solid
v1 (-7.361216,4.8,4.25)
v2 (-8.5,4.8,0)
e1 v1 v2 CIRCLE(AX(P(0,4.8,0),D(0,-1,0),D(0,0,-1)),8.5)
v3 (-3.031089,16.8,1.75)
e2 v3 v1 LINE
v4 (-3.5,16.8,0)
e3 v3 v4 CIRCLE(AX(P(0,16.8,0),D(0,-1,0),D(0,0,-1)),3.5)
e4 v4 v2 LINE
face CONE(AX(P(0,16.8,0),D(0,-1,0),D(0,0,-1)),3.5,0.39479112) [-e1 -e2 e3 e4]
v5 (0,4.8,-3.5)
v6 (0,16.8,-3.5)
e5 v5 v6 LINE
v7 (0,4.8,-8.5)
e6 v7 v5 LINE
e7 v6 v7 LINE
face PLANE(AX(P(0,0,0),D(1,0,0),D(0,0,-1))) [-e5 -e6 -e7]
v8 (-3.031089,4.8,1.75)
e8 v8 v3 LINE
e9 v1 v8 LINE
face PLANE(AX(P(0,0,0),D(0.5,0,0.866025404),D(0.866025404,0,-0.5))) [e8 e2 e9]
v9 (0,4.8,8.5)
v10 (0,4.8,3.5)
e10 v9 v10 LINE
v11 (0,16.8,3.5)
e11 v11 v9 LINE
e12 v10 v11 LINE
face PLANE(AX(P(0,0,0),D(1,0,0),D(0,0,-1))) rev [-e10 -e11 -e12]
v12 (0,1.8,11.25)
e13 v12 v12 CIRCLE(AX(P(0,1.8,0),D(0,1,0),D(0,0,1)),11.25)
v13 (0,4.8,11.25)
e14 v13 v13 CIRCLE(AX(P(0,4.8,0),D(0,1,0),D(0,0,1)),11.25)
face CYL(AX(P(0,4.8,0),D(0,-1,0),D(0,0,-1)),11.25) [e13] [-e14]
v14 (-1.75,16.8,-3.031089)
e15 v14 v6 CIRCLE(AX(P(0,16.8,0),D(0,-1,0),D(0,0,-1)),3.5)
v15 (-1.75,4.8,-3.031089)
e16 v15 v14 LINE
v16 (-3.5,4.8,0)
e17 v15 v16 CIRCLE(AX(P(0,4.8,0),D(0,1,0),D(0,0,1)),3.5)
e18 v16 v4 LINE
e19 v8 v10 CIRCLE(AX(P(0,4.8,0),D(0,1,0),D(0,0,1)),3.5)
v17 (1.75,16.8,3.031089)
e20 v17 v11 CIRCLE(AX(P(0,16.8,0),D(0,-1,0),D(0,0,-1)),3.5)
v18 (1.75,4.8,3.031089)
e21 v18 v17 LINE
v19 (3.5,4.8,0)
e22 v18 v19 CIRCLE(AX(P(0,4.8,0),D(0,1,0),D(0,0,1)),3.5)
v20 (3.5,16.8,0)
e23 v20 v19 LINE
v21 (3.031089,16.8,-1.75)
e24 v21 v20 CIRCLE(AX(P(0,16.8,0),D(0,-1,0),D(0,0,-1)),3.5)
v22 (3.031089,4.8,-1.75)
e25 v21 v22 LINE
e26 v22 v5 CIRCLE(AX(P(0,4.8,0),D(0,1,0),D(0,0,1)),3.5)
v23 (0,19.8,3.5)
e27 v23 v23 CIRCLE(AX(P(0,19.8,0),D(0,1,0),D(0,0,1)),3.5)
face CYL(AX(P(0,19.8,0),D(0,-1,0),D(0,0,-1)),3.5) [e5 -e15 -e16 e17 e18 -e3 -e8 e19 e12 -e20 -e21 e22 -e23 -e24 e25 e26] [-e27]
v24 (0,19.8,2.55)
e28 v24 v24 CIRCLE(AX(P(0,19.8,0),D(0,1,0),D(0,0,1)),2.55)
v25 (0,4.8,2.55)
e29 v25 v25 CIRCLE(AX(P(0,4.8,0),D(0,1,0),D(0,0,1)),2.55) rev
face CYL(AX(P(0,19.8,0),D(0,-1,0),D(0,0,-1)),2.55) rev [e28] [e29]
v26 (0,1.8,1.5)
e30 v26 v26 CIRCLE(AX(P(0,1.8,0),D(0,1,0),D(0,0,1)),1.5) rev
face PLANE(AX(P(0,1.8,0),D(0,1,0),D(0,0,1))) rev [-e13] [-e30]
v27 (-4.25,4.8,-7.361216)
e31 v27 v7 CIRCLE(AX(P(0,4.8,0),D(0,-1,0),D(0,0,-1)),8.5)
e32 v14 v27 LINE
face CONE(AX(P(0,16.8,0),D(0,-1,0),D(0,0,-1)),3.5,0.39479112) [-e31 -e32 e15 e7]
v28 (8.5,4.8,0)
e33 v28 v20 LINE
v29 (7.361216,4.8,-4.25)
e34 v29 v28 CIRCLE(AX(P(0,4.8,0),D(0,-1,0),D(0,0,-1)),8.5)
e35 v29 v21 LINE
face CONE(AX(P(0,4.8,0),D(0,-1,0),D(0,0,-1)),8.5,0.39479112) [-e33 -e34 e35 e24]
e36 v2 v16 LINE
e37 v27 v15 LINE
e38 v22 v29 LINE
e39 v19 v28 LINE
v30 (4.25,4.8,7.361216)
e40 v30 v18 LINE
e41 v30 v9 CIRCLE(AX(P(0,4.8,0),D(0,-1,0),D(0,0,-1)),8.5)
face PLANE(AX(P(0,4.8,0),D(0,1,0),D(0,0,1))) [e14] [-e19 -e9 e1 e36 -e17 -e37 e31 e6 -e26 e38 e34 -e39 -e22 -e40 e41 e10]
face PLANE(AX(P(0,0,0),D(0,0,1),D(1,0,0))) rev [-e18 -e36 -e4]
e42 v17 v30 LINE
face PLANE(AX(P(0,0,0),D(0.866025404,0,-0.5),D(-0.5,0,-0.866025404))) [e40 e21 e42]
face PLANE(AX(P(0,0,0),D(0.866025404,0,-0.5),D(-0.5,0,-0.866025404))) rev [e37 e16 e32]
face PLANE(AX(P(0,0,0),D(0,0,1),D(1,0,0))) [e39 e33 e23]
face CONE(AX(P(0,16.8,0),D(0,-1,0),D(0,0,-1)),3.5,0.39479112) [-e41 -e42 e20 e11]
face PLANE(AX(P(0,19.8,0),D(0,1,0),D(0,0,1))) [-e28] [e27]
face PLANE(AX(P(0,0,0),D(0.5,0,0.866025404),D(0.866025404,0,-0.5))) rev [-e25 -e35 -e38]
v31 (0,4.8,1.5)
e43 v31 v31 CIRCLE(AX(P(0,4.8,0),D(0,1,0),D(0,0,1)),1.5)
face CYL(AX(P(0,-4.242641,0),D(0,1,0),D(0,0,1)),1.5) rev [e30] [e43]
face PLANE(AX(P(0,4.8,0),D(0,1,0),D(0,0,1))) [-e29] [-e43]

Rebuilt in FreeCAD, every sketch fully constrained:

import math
import FreeCAD as App
import Part
import Sketcher
from FreeCAD import Vector
Q = App.Units.Quantity


def add_polygon(sketch, points):
    """Adds a closed chain of lines whose ends are joined by coincident constraints."""
    first, n = sketch.GeometryCount, len(points)
    for a, b in zip(points, points[1:] + points[:1]):
        sketch.addGeometry(Part.LineSegment(App.Vector(*a, 0), App.Vector(*b, 0)), False)
    for i in range(n):
        sketch.addConstraint(Sketcher.Constraint("Coincident", first + i, 2, first + (i + 1) % n, 1))

doc = App.newDocument("Part")
params = doc.addObject("Spreadsheet::Sheet", "Params")
for row, (alias, value) in enumerate([
    ("sketch1_diameter", "20.8 mm"),
    ("pad1_length", "1.8 mm"),
    ("sketch2_diameter", "22.5 mm"),
    ("pad2_length", "3 mm"),
    ("sketch3_diameter", "7 mm"),
    ("sketch3_diameter2", "5.1 mm"),
    ("pad3_length", "15 mm"),
    ("sketch4_diameter", "3 mm"),
    ("pocket1_length", "4.8 mm"),
    ("sketch5_width", "12 mm"),
    ("sketch5_height", "5 mm"),
    ("revolution_angle", "30 deg"),
    ("sketch6_width", "5 mm"),
    ("sketch6_height", "12 mm"),
    ("revolution2_angle", "30 deg"),
    ("sketch7_radius", "10 mm"),
    ("sketch7_radius2", "9 mm"),
    ("sketch7_radius3", "10.9 mm"),
    ("pad4_length", "2 mm"),
    ("sketch8_height", "2 mm"),
    ("groove_angle", "360 deg"),
    ("sketch9_width", "3.8 mm"),
    ("sketch9_height", "11.25 mm"),
    ("groove2_angle", "360 deg"),
], start=1):
    params.set(f"A{row}", alias)
    params.set(f"B{row}", "=" + value)
    params.setAlias(f"B{row}", alias)

body = doc.addObject("PartDesign::Body", "Body")

sketch1 = doc.addObject("Sketcher::SketchObject", "Sketch")
body.addObject(sketch1)
sketch1.AttachmentSupport = (doc.XZ_Plane, [""])
sketch1.MapMode = "FlatFace"
sketch1.addGeometry(Part.Circle(Vector(0, 0, 0), Vector(0, 0, 1), 10), False)
sketch1.addConstraint([
    Sketcher.Constraint("Coincident", 0, 3, -1, 1),
    Sketcher.Constraint("Diameter", 0, 20.8),
])
sketch1.setExpression("Constraints[1]", "Params.sketch1_diameter")
pad1 = doc.addObject("PartDesign::Pad", "Pad")
body.addObject(pad1)
pad1.Profile = sketch1
pad1.setExpression("Length", "Params.pad1_length")
pad1.Reversed = True

sketch2 = doc.addObject("Sketcher::SketchObject", "Sketch001")
body.addObject(sketch2)
sketch2.AttachmentSupport = (doc.XZ_Plane, [""])
sketch2.MapMode = "FlatFace"
sketch2.AttachmentOffset = App.Placement(Vector(0, 0, -1.8), App.Rotation())
sketch2.addGeometry(Part.Circle(Vector(0, 0, 0), Vector(0, 0, 1), 11), False)
sketch2.addConstraint([
    Sketcher.Constraint("Coincident", 0, 3, -1, 1),
    Sketcher.Constraint("Diameter", 0, 22.5),
])
sketch2.setExpression("Constraints[1]", "Params.sketch2_diameter")
pad2 = doc.addObject("PartDesign::Pad", "Pad001")
body.addObject(pad2)
pad2.Profile = sketch2
pad2.setExpression("Length", "Params.pad2_length")
pad2.Reversed = True

sketch3 = doc.addObject("Sketcher::SketchObject", "Sketch002")
body.addObject(sketch3)
sketch3.AttachmentSupport = (doc.XZ_Plane, [""])
sketch3.MapMode = "FlatFace"
sketch3.AttachmentOffset = App.Placement(Vector(0, 0, -4.8), App.Rotation())
sketch3.addGeometry([
    Part.Circle(Vector(0, 0, 0), Vector(0, 0, 1), 3.5),
    Part.Circle(Vector(0, 0, 0), Vector(0, 0, 1), 2.5),
], False)
sketch3.addConstraint([
    Sketcher.Constraint("Coincident", 0, 3, -1, 1),
    Sketcher.Constraint("Coincident", 1, 3, -1, 1),
    Sketcher.Constraint("Diameter", 0, 7.0),
    Sketcher.Constraint("Diameter", 1, 5.1),
])
sketch3.setExpression("Constraints[2]", "Params.sketch3_diameter")
sketch3.setExpression("Constraints[3]", "Params.sketch3_diameter2")
pad3 = doc.addObject("PartDesign::Pad", "Pad002")
body.addObject(pad3)
pad3.Profile = sketch3
pad3.setExpression("Length", "Params.pad3_length")
pad3.Reversed = True

sketch4 = doc.addObject("Sketcher::SketchObject", "Sketch003")
body.addObject(sketch4)
sketch4.AttachmentSupport = (doc.XZ_Plane, [""])
sketch4.MapMode = "FlatFace"
sketch4.AttachmentOffset = App.Placement(Vector(0, 0, -4.8), App.Rotation())
sketch4.addGeometry(Part.Circle(Vector(0, 0, 0), Vector(0, 0, 1), 1.5), False)
sketch4.addConstraint([
    Sketcher.Constraint("Coincident", 0, 3, -1, 1),
    Sketcher.Constraint("Diameter", 0, 3.0),
])
sketch4.setExpression("Constraints[1]", "Params.sketch4_diameter")
pocket1 = doc.addObject("PartDesign::Pocket", "Pocket")
body.addObject(pocket1)
pocket1.Profile = sketch4
pocket1.setExpression("Length", "Params.pocket1_length")
pocket1.Reversed = True

sketch5 = doc.addObject("Sketcher::SketchObject", "Sketch004")
body.addObject(sketch5)
sketch5.AttachmentSupport = (doc.YZ_Plane, [""])
sketch5.MapMode = "FlatFace"
add_polygon(sketch5, [(17, -4), (5, -4), (5, -8)])
add_polygon(sketch5, [(5, 8), (5, 4), (17, 4)])
sketch5.addConstraint([
    Sketcher.Constraint("Horizontal", 0),
    Sketcher.Constraint("Vertical", 1),
    Sketcher.Constraint("Vertical", 3),
    Sketcher.Constraint("Horizontal", 4),
    Sketcher.Constraint("Symmetric", 0, 2, 3, 2, -1),
    Sketcher.Constraint("Vertical", 2, 2, 4, 2),
    Sketcher.Constraint("Equal", 1, 3),
    Sketcher.Constraint("DistanceX", 0, 2, 0, 1, 12.0),
    Sketcher.Constraint("DistanceY", 1, 2, 1, 1, 5.0),
    Sketcher.Constraint("DistanceY", 0, 2, 3, 2, 7.0),
    Sketcher.Constraint("DistanceX", -1, 1, 0, 2, 4.8),
])
sketch5.setExpression("Constraints[13]", "Params.sketch5_width")
sketch5.setExpression("Constraints[14]", "Params.sketch5_height")
revolution = doc.addObject("PartDesign::Revolution", "Revolution")
body.addObject(revolution)
revolution.Profile = sketch5
revolution.ReferenceAxis = (sketch5, ["H_Axis"])
revolution.setExpression("Angle", "Params.revolution_angle")

sketch6 = doc.addObject("Sketcher::SketchObject", "Sketch005")
body.addObject(sketch6)
sketch6.AttachmentSupport = (doc.XY_Plane, [""])
sketch6.MapMode = "FlatFace"
add_polygon(sketch6, [(4, 5), (8, 5), (4, 17)])
add_polygon(sketch6, [(-4, 17), (-8, 5), (-4, 5)])
sketch6.addConstraint([
    Sketcher.Constraint("Horizontal", 0),
    Sketcher.Constraint("Vertical", 2),
    Sketcher.Constraint("Horizontal", 4),
    Sketcher.Constraint("Vertical", 5),
    Sketcher.Constraint("Symmetric", 0, 2, 3, 2, -2),
    Sketcher.Constraint("Symmetric", 1, 2, 5, 2, -2),
    Sketcher.Constraint("DistanceX", 0, 1, 0, 2, 5.0),
    Sketcher.Constraint("DistanceY", 2, 2, 2, 1, 12.0),
    Sketcher.Constraint("DistanceX", 3, 2, 2, 2, 12.0),
    Sketcher.Constraint("DistanceY", -1, 1, 0, 2, 4.8),
])
sketch6.setExpression("Constraints[12]", "Params.sketch6_width")
sketch6.setExpression("Constraints[13]", "Params.sketch6_height")
revolution2 = doc.addObject("PartDesign::Revolution", "Revolution001")
body.addObject(revolution2)
revolution2.Profile = sketch6
revolution2.ReferenceAxis = (sketch6, ["V_Axis"])
revolution2.setExpression("Angle", "Params.revolution2_angle")

sketch7 = doc.addObject("Sketcher::SketchObject", "Sketch006")
body.addObject(sketch7)
sketch7.AttachmentSupport = (doc.XZ_Plane, [""])
sketch7.MapMode = "FlatFace"
sketch7.addGeometry([
    Part.LineSegment(Vector(10, -0.9, 0), Vector(10.9, -0.9, 0)),
    Part.ArcOfCircle(Part.Circle(Vector(0, 0, 0), Vector(0, 0, 1), 10.9), math.radians(-5), math.radians(5)),
    Part.LineSegment(Vector(10.9, 0.9, 0), Vector(10, 0.9, 0)),
    Part.ArcOfCircle(Part.Circle(Vector(0, 0, 0), Vector(0, 0, 1), 10), math.radians(5), math.radians(15)),
    Part.LineSegment(Vector(9.7, 2.6, 0), Vector(8.7, 2.3, 0)),
    Part.ArcOfCircle(Part.Circle(Vector(0, 0, 0), Vector(0, 0, 1), 9), math.radians(-15), math.radians(15)),
    Part.LineSegment(Vector(8.7, -2.3, 0), Vector(9.7, -2.6, 0)),
    Part.ArcOfCircle(Part.Circle(Vector(0, 0, 0), Vector(0, 0, 1), 10), math.radians(-15), math.radians(-5)),
    Part.LineSegment(Vector(2.3, 8.7, 0), Vector(2.6, 9.7, 0)),
    Part.ArcOfCircle(Part.Circle(Vector(0, 0, 0), Vector(0, 0, 1), 10), math.radians(75), math.radians(85)),
    Part.LineSegment(Vector(0.9, 10, 0), Vector(0.9, 10.9, 0)),
    Part.ArcOfCircle(Part.Circle(Vector(0, 0, 0), Vector(0, 0, 1), 10.9), math.radians(85), math.radians(95)),
    Part.LineSegment(Vector(-0.9, 10.9, 0), Vector(-0.9, 10, 0)),
    Part.ArcOfCircle(Part.Circle(Vector(0, 0, 0), Vector(0, 0, 1), 10), math.radians(95), math.radians(105)),
    Part.LineSegment(Vector(-2.6, 9.7, 0), Vector(-2.3, 8.7, 0)),
    Part.ArcOfCircle(Part.Circle(Vector(0, 0, 0), Vector(0, 0, 1), 9), math.radians(75), math.radians(105)),
    Part.LineSegment(Vector(-2.3, -8.7, 0), Vector(-2.6, -9.7, 0)),
    Part.ArcOfCircle(Part.Circle(Vector(0, 0, 0), Vector(0, 0, 1), 10), math.radians(-105), math.radians(-95)),
    Part.LineSegment(Vector(-0.9, -10, 0), Vector(-0.9, -10.9, 0)),
    Part.ArcOfCircle(Part.Circle(Vector(0, 0, 0), Vector(0, 0, 1), 10.9), math.radians(-95), math.radians(-85)),
    Part.LineSegment(Vector(0.9, -10.9, 0), Vector(0.9, -10, 0)),
    Part.ArcOfCircle(Part.Circle(Vector(0, 0, 0), Vector(0, 0, 1), 10), math.radians(-85), math.radians(-75)),
    Part.LineSegment(Vector(2.6, -9.7, 0), Vector(2.3, -8.7, 0)),
    Part.ArcOfCircle(Part.Circle(Vector(0, 0, 0), Vector(0, 0, 1), 9), math.radians(-105), math.radians(-75)),
    Part.LineSegment(Vector(-8.7, 2.3, 0), Vector(-9.7, 2.6, 0)),
    Part.ArcOfCircle(Part.Circle(Vector(0, 0, 0), Vector(0, 0, 1), 10), math.radians(165), math.radians(175)),
    Part.LineSegment(Vector(-10, 0.9, 0), Vector(-10.9, 0.9, 0)),
    Part.ArcOfCircle(Part.Circle(Vector(0, 0, 0), Vector(0, 0, 1), 10.9), math.radians(175), math.radians(185)),
    Part.LineSegment(Vector(-10.9, -0.9, 0), Vector(-10, -0.9, 0)),
    Part.ArcOfCircle(Part.Circle(Vector(0, 0, 0), Vector(0, 0, 1), 10), math.radians(-175), math.radians(-165)),
    Part.LineSegment(Vector(-9.7, -2.6, 0), Vector(-8.7, -2.3, 0)),
    Part.ArcOfCircle(Part.Circle(Vector(0, 0, 0), Vector(0, 0, 1), 9), math.radians(165), math.radians(195)),
], False)
sketch7.addConstraint([
    Sketcher.Constraint("Coincident", 0, 2, 1, 1),
    Sketcher.Constraint("Coincident", 1, 2, 2, 1),
    Sketcher.Constraint("Coincident", 2, 2, 3, 1),
    Sketcher.Constraint("Coincident", 3, 2, 4, 1),
    Sketcher.Constraint("Coincident", 4, 2, 5, 2),
    Sketcher.Constraint("Coincident", 5, 1, 6, 1),
    Sketcher.Constraint("Coincident", 6, 2, 7, 1),
    Sketcher.Constraint("Coincident", 7, 2, 0, 1),
    Sketcher.Constraint("Coincident", 8, 2, 9, 1),
    Sketcher.Constraint("Coincident", 9, 2, 10, 1),
    Sketcher.Constraint("Coincident", 10, 2, 11, 1),
    Sketcher.Constraint("Coincident", 11, 2, 12, 1),
    Sketcher.Constraint("Coincident", 12, 2, 13, 1),
    Sketcher.Constraint("Coincident", 13, 2, 14, 1),
    Sketcher.Constraint("Coincident", 14, 2, 15, 2),
    Sketcher.Constraint("Coincident", 15, 1, 8, 1),
    Sketcher.Constraint("Coincident", 16, 2, 17, 1),
    Sketcher.Constraint("Coincident", 17, 2, 18, 1),
    Sketcher.Constraint("Coincident", 18, 2, 19, 1),
    Sketcher.Constraint("Coincident", 19, 2, 20, 1),
    Sketcher.Constraint("Coincident", 20, 2, 21, 1),
    Sketcher.Constraint("Coincident", 21, 2, 22, 1),
    Sketcher.Constraint("Coincident", 22, 2, 23, 2),
    Sketcher.Constraint("Coincident", 23, 1, 16, 1),
    Sketcher.Constraint("Coincident", 24, 2, 25, 1),
    Sketcher.Constraint("Coincident", 25, 2, 26, 1),
    Sketcher.Constraint("Coincident", 26, 2, 27, 1),
    Sketcher.Constraint("Coincident", 27, 2, 28, 1),
    Sketcher.Constraint("Coincident", 28, 2, 29, 1),
    Sketcher.Constraint("Coincident", 29, 2, 30, 1),
    Sketcher.Constraint("Coincident", 30, 2, 31, 2),
    Sketcher.Constraint("Coincident", 31, 1, 24, 1),
    Sketcher.Constraint("Coincident", 1, 3, -1, 1),
    Sketcher.Constraint("Coincident", 3, 3, -1, 1),
    Sketcher.Constraint("Coincident", 5, 3, -1, 1),
    Sketcher.Constraint("Coincident", 7, 3, -1, 1),
    Sketcher.Constraint("Coincident", 9, 3, -1, 1),
    Sketcher.Constraint("Coincident", 11, 3, -1, 1),
    Sketcher.Constraint("Coincident", 13, 3, -1, 1),
    Sketcher.Constraint("Coincident", 15, 3, -1, 1),
    Sketcher.Constraint("Coincident", 17, 3, -1, 1),
    Sketcher.Constraint("Coincident", 19, 3, -1, 1),
    Sketcher.Constraint("Coincident", 21, 3, -1, 1),
    Sketcher.Constraint("Coincident", 23, 3, -1, 1),
    Sketcher.Constraint("Coincident", 25, 3, -1, 1),
    Sketcher.Constraint("Coincident", 27, 3, -1, 1),
    Sketcher.Constraint("Coincident", 29, 3, -1, 1),
    Sketcher.Constraint("Coincident", 31, 3, -1, 1),
    Sketcher.Constraint("Equal", 3, 7),
    Sketcher.Constraint("Equal", 7, 9),
    Sketcher.Constraint("Equal", 1, 11),
    Sketcher.Constraint("Equal", 9, 13),
    Sketcher.Constraint("Equal", 5, 15),
    Sketcher.Constraint("Equal", 13, 17),
    Sketcher.Constraint("Equal", 11, 19),
    Sketcher.Constraint("Equal", 17, 21),
    Sketcher.Constraint("Equal", 15, 23),
    Sketcher.Constraint("Equal", 21, 25),
    Sketcher.Constraint("Equal", 19, 27),
    Sketcher.Constraint("Equal", 25, 29),
    Sketcher.Constraint("Equal", 23, 31),
    Sketcher.Constraint("Perpendicular", 6, 8),
    Sketcher.Constraint("Perpendicular", 0, 10),
    Sketcher.Constraint("Perpendicular", 2, 12),
    Sketcher.Constraint("Perpendicular", 4, 14),
    Sketcher.Constraint("Parallel", 8, 16),
    Sketcher.Constraint("Parallel", 10, 18),
    Sketcher.Constraint("Parallel", 12, 20),
    Sketcher.Constraint("Parallel", 14, 22),
    Sketcher.Constraint("Perpendicular", 16, 24),
    Sketcher.Constraint("Perpendicular", 18, 26),
    Sketcher.Constraint("Perpendicular", 20, 28),
    Sketcher.Constraint("Perpendicular", 22, 30),
    Sketcher.Constraint("Horizontal", 10, 2, 11, 2),
    Sketcher.Constraint("Horizontal", 9, 2, 12, 2),
    Sketcher.Constraint("Horizontal", 8, 2, 13, 2),
    Sketcher.Constraint("Horizontal", 14, 2, 15, 1),
    Sketcher.Constraint("Horizontal", 18, 2, 19, 2),
    Sketcher.Constraint("Horizontal", 16, 2, 21, 2),
    Sketcher.Constraint("Horizontal", 3, 2, 24, 2),
    Sketcher.Constraint("Horizontal", 2, 2, 25, 2),
    Sketcher.Constraint("Horizontal", 0, 2, 27, 2),
    Sketcher.Constraint("Horizontal", 6, 2, 29, 2),
    Sketcher.Constraint("Vertical", 0, 2, 1, 2),
    Sketcher.Constraint("Vertical", 4, 2, 5, 1),
    Sketcher.Constraint("Vertical", 13, 2, 16, 2),
    Sketcher.Constraint("Vertical", 12, 2, 17, 2),
    Sketcher.Constraint("Radius", 3, 10.0),
    Sketcher.Constraint("Radius", 5, 9.0),
    Sketcher.Constraint("Radius", 1, 10.9),
    Sketcher.Constraint("Angle", 0, Q("-5 deg")),
    Sketcher.Constraint("Angle", 4, Q("-165 deg")),
    Sketcher.Constraint("DistanceX", -1, 1, 3, 2, 9.659258),
    Sketcher.Constraint("DistanceX", -1, 1, 8, 2, 2.58819),
    Sketcher.Constraint("DistanceX", 3, 2, 2, 2, 0.302689),
    Sketcher.Constraint("DistanceY", 8, 2, 9, 2, 0.302689),
])
sketch7.setExpression("Constraints[87]", "Params.sketch7_radius")
sketch7.setExpression("Constraints[88]", "Params.sketch7_radius2")
sketch7.setExpression("Constraints[89]", "Params.sketch7_radius3")
pad4 = doc.addObject("PartDesign::Pad", "Pad003")
body.addObject(pad4)
pad4.Profile = sketch7
pad4.setExpression("Length", "Params.pad4_length")

sketch8 = doc.addObject("Sketcher::SketchObject", "Sketch007")
body.addObject(sketch8)
sketch8.AttachmentSupport = (doc.XY_Plane, [""])
sketch8.MapMode = "FlatFace"
add_polygon(sketch8, [(10, -2), (10.9, -2), (10.9, 0)])
sketch8.addConstraint([
    Sketcher.Constraint("Horizontal", 0),
    Sketcher.Constraint("Vertical", 1),
    Sketcher.Constraint("PointOnObject", 1, 2, -1),
    Sketcher.Constraint("DistanceY", 1, 1, 1, 2, 2.0),
    Sketcher.Constraint("DistanceX", -1, 1, 0, 2, 10.9),
    Sketcher.Constraint("Distance", 2, 2.209059),
])
sketch8.setExpression("Constraints[6]", "Params.sketch8_height")
groove = doc.addObject("PartDesign::Groove", "Groove")
body.addObject(groove)
groove.Profile = sketch8
groove.ReferenceAxis = (sketch8, ["V_Axis"])
groove.setExpression("Angle", "Params.groove_angle")

sketch9 = doc.addObject("Sketcher::SketchObject", "Sketch008")
body.addObject(sketch9)
sketch9.AttachmentSupport = (doc.YZ_Plane, [""])
sketch9.MapMode = "FlatFace"
add_polygon(sketch9, [(1.8, 11.2), (-2, 11.2), (-2, 0), (1.8, 0)])
sketch9.addConstraint([
    Sketcher.Constraint("Horizontal", 0),
    Sketcher.Constraint("Vertical", 1),
    Sketcher.Constraint("Horizontal", 2),
    Sketcher.Constraint("Vertical", 3),
    Sketcher.Constraint("PointOnObject", 1, 2, -1),
    Sketcher.Constraint("DistanceX", 0, 2, 0, 1, 3.8),
    Sketcher.Constraint("DistanceX", 0, 2, -1, 1, 2.0),
    Sketcher.Constraint("DistanceY", 1, 2, 1, 1, 11.25),
])
sketch9.setExpression("Constraints[9]", "Params.sketch9_width")
sketch9.setExpression("Constraints[11]", "Params.sketch9_height")
groove2 = doc.addObject("PartDesign::Groove", "Groove001")
body.addObject(groove2)
groove2.Profile = sketch9
groove2.ReferenceAxis = (sketch9, ["H_Axis"])
groove2.setExpression("Angle", "Params.groove2_angle")

doc.recompute()
